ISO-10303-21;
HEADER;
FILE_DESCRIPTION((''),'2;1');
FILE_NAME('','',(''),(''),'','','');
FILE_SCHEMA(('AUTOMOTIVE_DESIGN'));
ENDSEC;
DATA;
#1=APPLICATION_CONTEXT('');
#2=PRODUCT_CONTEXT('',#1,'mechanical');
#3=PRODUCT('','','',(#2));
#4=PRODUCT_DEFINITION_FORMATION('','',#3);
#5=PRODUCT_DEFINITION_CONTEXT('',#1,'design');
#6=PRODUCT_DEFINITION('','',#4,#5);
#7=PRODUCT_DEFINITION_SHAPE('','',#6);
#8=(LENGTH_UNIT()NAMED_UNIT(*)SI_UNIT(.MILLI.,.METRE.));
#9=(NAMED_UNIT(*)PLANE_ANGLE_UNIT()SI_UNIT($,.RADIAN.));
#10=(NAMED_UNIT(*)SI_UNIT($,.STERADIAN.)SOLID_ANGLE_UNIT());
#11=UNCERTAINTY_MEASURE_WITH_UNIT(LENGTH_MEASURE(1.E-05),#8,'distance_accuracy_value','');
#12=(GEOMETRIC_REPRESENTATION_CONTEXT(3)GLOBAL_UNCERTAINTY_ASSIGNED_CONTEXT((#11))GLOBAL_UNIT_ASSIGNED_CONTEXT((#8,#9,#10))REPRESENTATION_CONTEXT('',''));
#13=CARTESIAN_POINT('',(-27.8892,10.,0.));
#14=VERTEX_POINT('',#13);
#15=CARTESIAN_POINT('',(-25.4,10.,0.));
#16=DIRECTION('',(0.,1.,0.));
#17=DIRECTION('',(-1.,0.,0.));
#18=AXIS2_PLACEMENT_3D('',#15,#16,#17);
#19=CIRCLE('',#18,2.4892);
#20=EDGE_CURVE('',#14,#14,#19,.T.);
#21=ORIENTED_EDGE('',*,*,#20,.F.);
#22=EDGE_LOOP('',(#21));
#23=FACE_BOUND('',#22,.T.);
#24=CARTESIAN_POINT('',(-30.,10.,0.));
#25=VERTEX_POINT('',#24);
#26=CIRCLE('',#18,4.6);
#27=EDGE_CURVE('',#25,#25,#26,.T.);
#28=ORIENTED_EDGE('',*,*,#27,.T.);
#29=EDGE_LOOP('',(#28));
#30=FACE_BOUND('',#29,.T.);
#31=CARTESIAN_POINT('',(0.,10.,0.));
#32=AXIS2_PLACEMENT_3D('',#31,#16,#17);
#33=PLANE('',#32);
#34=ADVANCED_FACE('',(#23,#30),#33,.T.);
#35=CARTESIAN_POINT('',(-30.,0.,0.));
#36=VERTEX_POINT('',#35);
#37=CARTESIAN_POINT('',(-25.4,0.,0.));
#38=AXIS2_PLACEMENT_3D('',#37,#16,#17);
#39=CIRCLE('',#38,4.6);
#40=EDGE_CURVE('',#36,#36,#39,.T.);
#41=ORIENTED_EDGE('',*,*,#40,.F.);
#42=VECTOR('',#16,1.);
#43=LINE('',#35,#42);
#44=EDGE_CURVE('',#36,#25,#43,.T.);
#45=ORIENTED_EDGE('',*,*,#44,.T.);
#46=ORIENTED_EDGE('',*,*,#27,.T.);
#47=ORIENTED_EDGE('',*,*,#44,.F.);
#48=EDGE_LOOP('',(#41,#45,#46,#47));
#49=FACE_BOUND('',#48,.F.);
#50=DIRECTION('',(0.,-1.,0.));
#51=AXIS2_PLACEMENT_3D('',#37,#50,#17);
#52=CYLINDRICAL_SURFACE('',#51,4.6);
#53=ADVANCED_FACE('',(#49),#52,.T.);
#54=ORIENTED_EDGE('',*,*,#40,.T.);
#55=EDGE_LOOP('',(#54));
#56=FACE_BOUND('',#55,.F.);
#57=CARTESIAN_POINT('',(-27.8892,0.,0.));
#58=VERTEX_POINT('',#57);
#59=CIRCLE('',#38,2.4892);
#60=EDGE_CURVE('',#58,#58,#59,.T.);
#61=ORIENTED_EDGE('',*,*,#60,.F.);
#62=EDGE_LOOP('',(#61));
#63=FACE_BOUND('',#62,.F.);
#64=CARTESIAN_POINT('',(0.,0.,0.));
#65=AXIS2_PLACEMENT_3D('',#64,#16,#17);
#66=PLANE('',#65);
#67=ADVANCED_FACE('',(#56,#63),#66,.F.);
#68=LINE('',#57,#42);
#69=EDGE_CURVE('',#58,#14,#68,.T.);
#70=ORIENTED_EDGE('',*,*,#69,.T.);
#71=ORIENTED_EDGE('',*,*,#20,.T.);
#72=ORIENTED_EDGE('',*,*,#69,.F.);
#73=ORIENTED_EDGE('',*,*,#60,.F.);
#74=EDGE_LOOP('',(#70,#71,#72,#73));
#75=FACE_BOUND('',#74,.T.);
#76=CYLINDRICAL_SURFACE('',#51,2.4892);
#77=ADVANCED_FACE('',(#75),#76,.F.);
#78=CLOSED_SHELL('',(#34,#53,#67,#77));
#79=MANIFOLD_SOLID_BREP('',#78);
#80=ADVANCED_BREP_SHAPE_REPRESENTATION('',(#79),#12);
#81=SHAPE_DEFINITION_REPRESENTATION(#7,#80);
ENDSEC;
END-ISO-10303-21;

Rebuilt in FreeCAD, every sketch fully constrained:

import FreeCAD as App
import Part
import Sketcher
Q = App.Units.Quantity

doc = App.newDocument("Part")
params = doc.addObject("Spreadsheet::Sheet", "Params")
for row, (alias, value) in enumerate([
    ("sketch1_diameter", "0.196 in"),
    ("pad1_length", "0.3937008 in"),
], start=1):
    params.set(f"A{row}", alias)
    params.set(f"B{row}", "=" + value)
    params.setAlias(f"B{row}", alias)

body = doc.addObject("PartDesign::Body", "Body")

sketch1 = body.newObject("Sketcher::SketchObject", "Sketch")
sketch1.AttachmentSupport = (doc.getObject("XZ_Plane"), [""])
sketch1.MapMode = "FlatFace"
sketch1.addGeometry([
    Part.Circle(App.Vector(-25.4, 0, 0), App.Vector(0, 0, 1), 4.6),
    Part.Circle(App.Vector(-25.4, 0, 0), App.Vector(0, 0, 1), 2.5),
], False)
sketch1.addConstraint([
    Sketcher.Constraint("Coincident", 1, 3, 0, 3),
    Sketcher.Constraint("PointOnObject", 0, 3, -1),
    Sketcher.Constraint("Diameter", 1, Q("0.196 in")),
    Sketcher.Constraint("DistanceX", 0, 3, -1, 1, Q("1 in")),
    Sketcher.Constraint("Diameter", 0, Q("0.3622 in")),
])
sketch1.setExpression("Constraints[2]", "Params.sketch1_diameter")
pad1 = body.newObject("PartDesign::Pad", "Pad")
pad1.Profile = sketch1
pad1.setExpression("Length", "Params.pad1_length")
pad1.Reversed = True

doc.recompute()
